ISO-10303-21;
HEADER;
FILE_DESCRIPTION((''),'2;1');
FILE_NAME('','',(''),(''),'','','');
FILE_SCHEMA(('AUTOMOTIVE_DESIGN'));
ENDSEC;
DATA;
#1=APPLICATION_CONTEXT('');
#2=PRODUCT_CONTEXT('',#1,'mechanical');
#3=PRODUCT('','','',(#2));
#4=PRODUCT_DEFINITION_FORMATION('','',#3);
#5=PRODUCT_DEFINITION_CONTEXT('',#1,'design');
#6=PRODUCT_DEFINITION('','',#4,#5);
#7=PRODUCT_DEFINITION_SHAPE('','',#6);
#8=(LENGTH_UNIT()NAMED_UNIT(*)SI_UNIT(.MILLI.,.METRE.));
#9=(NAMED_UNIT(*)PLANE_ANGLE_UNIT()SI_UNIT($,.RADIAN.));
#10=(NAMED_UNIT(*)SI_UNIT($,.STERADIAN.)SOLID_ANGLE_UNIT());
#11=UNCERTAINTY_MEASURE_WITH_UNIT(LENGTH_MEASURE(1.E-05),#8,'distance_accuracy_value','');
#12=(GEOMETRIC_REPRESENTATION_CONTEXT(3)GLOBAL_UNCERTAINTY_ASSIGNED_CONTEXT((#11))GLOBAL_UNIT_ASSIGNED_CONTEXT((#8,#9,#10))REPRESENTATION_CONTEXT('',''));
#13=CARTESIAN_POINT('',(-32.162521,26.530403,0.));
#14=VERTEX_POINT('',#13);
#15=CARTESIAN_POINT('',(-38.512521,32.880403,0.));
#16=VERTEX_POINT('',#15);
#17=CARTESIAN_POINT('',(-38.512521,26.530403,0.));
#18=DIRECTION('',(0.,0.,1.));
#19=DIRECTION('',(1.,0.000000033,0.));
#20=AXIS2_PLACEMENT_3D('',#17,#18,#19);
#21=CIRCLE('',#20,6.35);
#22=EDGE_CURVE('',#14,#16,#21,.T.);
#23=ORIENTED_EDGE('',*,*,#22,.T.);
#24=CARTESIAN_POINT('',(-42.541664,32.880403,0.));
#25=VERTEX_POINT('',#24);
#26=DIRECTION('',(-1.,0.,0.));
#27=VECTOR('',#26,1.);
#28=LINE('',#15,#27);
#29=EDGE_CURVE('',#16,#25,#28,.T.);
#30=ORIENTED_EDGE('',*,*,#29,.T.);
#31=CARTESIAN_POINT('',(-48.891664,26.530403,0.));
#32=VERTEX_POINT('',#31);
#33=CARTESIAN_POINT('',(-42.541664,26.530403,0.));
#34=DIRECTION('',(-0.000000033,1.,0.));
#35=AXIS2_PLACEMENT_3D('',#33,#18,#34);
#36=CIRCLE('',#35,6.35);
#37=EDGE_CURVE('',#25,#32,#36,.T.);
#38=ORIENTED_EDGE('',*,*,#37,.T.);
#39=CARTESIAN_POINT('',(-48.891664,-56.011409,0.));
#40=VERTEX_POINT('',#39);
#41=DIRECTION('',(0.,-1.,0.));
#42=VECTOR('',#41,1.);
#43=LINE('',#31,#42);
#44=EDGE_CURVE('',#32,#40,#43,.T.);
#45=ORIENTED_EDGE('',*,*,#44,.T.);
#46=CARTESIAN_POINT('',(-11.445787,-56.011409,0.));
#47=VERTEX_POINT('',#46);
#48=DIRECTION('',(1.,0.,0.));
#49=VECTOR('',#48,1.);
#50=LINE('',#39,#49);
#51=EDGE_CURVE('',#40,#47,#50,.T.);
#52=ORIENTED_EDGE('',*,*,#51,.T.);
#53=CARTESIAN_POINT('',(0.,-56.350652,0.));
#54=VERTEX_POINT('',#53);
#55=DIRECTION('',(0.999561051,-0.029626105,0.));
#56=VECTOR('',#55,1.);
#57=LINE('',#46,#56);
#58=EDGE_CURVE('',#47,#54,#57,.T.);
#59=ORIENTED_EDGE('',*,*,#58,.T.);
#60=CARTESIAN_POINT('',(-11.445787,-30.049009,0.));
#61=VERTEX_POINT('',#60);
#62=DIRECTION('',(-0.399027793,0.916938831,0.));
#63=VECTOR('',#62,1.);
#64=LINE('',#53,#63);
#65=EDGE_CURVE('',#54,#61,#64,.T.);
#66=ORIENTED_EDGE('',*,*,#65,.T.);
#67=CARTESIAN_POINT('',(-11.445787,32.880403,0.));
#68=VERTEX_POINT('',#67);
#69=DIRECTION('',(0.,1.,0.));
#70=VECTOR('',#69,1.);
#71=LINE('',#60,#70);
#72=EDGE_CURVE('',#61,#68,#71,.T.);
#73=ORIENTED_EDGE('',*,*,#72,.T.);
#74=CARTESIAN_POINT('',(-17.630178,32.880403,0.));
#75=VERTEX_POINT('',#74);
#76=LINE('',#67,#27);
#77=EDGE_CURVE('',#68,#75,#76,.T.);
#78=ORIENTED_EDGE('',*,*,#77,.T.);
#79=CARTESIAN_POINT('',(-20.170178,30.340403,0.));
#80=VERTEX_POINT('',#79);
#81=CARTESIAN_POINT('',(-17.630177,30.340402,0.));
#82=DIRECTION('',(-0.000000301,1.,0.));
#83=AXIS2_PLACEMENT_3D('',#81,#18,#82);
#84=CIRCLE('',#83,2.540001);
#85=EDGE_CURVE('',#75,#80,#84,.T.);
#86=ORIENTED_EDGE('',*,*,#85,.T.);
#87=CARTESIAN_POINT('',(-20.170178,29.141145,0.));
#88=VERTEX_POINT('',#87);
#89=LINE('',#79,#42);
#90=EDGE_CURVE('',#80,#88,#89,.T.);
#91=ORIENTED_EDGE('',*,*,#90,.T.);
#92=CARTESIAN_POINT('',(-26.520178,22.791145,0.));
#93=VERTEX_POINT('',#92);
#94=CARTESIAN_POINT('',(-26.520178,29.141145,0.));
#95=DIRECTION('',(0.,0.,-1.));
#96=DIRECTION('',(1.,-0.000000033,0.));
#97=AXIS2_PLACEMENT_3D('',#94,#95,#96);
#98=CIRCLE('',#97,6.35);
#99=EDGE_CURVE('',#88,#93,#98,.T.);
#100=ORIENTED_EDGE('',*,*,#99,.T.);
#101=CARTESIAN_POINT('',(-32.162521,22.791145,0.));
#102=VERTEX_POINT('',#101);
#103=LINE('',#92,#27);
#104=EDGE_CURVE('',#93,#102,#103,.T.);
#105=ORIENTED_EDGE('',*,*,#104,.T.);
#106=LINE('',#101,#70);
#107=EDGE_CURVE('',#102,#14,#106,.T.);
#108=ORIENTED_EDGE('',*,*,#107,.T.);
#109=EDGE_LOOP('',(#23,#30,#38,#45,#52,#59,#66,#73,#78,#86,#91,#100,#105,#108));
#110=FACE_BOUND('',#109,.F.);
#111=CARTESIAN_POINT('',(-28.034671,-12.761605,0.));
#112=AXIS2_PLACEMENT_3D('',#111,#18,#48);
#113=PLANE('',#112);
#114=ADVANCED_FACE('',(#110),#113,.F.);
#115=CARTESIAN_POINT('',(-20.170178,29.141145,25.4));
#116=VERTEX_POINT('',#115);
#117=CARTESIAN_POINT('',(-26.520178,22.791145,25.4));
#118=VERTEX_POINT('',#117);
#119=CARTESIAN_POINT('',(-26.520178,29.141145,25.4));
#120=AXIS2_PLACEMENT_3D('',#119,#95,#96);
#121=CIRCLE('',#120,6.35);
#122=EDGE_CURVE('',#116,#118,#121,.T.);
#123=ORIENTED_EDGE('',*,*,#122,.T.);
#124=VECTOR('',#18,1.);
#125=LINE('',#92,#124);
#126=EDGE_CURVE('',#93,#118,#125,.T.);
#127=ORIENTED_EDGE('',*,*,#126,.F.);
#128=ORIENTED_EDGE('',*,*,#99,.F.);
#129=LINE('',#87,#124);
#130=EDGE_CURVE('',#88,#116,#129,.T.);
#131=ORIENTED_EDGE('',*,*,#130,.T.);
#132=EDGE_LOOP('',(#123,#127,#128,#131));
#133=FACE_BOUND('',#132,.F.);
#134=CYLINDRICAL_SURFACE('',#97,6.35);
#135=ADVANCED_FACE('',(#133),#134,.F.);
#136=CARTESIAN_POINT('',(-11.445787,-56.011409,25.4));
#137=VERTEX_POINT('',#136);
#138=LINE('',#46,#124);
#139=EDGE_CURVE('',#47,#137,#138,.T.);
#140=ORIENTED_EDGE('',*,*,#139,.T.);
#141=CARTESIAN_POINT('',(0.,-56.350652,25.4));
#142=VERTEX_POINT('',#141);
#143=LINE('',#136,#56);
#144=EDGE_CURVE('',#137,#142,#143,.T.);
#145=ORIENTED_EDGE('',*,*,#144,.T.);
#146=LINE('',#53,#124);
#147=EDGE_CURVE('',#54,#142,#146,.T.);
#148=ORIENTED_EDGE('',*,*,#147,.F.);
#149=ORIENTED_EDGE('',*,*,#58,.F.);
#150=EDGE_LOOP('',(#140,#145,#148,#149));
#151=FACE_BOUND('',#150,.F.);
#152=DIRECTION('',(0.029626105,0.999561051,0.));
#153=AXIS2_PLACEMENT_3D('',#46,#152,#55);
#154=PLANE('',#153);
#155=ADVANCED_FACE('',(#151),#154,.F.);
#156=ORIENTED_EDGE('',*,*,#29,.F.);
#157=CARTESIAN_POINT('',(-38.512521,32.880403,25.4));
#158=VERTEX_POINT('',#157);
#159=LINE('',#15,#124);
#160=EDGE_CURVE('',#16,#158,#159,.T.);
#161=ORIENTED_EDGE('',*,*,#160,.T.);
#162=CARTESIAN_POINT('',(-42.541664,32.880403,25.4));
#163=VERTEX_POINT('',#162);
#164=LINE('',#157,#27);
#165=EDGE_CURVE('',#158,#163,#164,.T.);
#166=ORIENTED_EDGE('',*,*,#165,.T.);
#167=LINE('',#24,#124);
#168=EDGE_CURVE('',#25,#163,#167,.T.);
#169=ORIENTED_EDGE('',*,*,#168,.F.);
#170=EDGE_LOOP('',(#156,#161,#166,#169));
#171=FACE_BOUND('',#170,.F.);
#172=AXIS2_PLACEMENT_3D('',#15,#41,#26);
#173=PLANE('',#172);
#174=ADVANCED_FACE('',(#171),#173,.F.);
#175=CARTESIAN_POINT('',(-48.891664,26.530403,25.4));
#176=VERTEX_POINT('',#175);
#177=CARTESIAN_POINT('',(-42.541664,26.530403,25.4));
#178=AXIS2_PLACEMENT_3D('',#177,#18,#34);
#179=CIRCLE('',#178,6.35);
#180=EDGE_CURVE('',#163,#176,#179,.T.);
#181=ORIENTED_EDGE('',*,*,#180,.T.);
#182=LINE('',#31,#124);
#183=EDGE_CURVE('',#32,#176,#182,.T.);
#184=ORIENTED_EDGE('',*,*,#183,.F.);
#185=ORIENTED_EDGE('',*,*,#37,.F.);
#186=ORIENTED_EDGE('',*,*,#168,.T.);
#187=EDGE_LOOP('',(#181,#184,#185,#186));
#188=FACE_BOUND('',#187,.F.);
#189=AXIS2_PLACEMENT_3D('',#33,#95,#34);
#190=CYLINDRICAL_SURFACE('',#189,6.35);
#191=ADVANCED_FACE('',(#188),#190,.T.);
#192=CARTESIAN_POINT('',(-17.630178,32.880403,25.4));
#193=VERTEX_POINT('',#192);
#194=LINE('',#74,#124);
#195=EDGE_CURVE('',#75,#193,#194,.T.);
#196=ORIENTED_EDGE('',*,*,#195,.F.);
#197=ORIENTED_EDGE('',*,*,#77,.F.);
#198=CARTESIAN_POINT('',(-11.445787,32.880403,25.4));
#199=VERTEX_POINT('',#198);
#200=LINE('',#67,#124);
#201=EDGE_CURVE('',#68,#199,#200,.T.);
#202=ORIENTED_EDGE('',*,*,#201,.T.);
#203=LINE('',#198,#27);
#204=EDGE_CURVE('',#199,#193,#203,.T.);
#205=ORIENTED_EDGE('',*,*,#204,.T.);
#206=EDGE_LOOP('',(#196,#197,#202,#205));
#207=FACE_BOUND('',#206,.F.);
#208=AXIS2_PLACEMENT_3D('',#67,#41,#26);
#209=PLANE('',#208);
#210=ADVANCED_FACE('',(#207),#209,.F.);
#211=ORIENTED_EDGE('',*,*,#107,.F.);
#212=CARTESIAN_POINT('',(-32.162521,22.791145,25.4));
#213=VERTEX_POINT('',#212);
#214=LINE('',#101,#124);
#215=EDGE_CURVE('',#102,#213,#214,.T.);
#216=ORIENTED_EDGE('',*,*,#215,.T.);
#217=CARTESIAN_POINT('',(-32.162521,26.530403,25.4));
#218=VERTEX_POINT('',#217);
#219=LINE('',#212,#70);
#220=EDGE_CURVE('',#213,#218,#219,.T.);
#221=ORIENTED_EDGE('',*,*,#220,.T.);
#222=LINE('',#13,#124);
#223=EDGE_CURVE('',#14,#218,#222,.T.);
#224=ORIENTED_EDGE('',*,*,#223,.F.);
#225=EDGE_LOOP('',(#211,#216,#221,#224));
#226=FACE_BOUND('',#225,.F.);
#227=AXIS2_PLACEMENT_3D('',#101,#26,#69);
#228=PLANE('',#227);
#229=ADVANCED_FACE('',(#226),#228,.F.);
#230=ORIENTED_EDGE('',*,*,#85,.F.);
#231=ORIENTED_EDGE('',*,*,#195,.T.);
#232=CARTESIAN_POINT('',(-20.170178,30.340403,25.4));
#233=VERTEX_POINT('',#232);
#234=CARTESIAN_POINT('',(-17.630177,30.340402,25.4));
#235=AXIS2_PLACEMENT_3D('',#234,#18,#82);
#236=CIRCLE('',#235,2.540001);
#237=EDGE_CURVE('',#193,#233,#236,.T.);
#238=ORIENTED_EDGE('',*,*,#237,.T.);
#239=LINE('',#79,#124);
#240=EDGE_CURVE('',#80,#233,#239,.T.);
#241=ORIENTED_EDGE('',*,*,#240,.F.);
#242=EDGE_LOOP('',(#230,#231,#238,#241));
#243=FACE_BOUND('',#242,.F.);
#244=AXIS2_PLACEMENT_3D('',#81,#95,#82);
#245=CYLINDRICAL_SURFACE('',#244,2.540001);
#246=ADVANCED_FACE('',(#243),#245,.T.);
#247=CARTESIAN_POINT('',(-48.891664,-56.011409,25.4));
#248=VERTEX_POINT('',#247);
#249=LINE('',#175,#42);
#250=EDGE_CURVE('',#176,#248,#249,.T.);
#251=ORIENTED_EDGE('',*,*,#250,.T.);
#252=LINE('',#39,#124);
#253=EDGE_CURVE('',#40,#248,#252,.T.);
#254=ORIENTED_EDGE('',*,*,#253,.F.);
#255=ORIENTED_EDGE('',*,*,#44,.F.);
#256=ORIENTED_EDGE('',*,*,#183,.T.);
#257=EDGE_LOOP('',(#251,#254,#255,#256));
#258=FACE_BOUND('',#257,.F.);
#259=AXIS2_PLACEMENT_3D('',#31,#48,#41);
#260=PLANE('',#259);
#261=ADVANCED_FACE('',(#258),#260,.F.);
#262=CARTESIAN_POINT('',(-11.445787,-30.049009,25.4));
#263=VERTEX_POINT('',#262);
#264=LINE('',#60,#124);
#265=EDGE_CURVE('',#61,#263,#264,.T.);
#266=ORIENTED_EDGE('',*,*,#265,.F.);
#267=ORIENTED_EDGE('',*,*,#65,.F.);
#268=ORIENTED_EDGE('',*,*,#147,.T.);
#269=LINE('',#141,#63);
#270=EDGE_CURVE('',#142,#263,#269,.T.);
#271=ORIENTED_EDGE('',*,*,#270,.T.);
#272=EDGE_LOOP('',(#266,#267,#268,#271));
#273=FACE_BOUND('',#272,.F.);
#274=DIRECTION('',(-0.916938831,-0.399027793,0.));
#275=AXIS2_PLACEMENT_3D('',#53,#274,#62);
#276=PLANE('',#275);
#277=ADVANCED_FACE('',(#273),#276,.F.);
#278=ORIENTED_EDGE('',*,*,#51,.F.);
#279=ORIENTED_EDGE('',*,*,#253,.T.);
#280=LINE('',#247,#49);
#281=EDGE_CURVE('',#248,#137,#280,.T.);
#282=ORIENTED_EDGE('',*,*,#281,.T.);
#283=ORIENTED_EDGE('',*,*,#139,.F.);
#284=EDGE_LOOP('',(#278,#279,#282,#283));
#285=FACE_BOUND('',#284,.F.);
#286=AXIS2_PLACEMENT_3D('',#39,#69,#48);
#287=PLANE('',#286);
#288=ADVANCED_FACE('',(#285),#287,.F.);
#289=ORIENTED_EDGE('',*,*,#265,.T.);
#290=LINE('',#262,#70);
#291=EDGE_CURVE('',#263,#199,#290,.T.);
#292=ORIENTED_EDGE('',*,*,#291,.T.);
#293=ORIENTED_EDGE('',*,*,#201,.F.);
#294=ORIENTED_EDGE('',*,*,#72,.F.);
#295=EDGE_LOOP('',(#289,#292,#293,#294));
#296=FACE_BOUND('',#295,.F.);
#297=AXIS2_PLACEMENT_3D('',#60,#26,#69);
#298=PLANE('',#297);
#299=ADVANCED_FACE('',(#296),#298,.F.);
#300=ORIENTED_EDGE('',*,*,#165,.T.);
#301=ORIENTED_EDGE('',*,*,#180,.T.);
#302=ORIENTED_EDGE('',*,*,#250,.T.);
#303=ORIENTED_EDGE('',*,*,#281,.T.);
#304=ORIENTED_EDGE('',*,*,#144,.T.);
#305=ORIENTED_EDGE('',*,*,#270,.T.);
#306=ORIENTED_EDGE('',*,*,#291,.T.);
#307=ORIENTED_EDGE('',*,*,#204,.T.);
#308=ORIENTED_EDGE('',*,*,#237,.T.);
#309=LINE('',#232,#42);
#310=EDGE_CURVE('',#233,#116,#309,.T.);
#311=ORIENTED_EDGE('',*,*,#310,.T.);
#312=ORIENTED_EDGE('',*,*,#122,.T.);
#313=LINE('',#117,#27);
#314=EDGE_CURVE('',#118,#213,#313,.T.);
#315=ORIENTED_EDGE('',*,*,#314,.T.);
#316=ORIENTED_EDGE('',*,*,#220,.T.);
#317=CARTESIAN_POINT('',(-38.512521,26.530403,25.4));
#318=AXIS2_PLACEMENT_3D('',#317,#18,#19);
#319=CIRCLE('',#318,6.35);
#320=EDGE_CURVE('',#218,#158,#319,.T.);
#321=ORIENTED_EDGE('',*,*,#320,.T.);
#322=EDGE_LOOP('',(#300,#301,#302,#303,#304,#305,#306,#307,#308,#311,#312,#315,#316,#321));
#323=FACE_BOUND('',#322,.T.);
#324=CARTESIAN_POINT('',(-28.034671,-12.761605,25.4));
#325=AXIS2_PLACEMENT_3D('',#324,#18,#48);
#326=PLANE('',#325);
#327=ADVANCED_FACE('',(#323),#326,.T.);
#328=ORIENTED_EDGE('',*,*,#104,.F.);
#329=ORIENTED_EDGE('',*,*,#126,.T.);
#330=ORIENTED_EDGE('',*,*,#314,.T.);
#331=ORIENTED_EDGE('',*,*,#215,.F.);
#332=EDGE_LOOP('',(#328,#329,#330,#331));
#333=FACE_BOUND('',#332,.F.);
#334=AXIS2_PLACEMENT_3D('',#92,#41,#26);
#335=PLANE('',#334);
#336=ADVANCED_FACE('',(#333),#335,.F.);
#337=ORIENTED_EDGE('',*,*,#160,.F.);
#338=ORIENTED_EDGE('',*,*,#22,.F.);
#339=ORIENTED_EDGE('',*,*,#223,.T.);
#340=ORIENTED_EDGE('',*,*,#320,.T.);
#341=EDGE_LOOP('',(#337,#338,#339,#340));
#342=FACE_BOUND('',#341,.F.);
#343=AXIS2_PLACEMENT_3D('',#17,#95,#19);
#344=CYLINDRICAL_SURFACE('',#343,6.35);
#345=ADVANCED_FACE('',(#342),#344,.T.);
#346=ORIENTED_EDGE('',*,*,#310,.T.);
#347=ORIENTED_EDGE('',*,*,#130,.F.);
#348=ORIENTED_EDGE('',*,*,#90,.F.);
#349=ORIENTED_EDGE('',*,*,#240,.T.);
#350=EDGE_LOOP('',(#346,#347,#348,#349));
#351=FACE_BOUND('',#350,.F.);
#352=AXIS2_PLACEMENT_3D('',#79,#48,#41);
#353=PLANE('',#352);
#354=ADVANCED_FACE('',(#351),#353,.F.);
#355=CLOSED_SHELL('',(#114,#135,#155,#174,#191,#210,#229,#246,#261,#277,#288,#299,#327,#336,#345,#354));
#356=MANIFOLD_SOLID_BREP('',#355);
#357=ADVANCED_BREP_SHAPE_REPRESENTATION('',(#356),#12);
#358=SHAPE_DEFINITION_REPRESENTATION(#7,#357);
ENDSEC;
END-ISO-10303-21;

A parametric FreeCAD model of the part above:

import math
import FreeCAD as App
import Part
import Sketcher
Q = App.Units.Quantity

doc = App.newDocument("Part")
params = doc.addObject("Spreadsheet::Sheet", "Params")
for row, (alias, value) in enumerate([
    ("sketch1_radius", "0.1 in"),
    ("sketch1_radius2", "0.25 in"),
    ("pad1_length", "1 in"),
], start=1):
    params.set(f"A{row}", alias)
    params.set(f"B{row}", "=" + value)
    params.setAlias(f"B{row}", alias)

body = doc.addObject("PartDesign::Body", "Body")

# Sketch on XY plane
sketch1 = body.newObject("Sketcher::SketchObject", "Sketch")
sketch1.AttachmentSupport = (doc.getObject("XY_Plane"), [""])
sketch1.MapMode = "FlatFace"
sketch1.addGeometry(Part.LineSegment(App.Vector(-38.5, 32.9, 0), App.Vector(-42.5, 32.9, 0)), False)
sketch1.addGeometry(Part.ArcOfCircle(Part.Circle(App.Vector(-42.5, 26.5, 0), App.Vector(0, 0, 1), 6.4), math.radians(90), math.radians(180)), False)
sketch1.addGeometry(Part.LineSegment(App.Vector(-48.9, 26.5, 0), App.Vector(-48.9, -56, 0)), False)
sketch1.addGeometry(Part.LineSegment(App.Vector(-48.9, -56, 0), App.Vector(-11.4, -56, 0)), False)
sketch1.addGeometry(Part.LineSegment(App.Vector(-11.4, -56, 0), App.Vector(0, -56.4, 0)), False)
sketch1.addGeometry(Part.LineSegment(App.Vector(0, -56.4, 0), App.Vector(-11.4, -30, 0)), False)
sketch1.addGeometry(Part.LineSegment(App.Vector(-11.4, -30, 0), App.Vector(-11.4, 32.9, 0)), False)
sketch1.addGeometry(Part.LineSegment(App.Vector(-11.4, 32.9, 0), App.Vector(-17.6, 32.9, 0)), False)
sketch1.addGeometry(Part.ArcOfCircle(Part.Circle(App.Vector(-17.6, 30.3, 0), App.Vector(0, 0, 1), 2.5), math.radians(90), math.radians(180)), False)
sketch1.addGeometry(Part.LineSegment(App.Vector(-20.2, 30.3, 0), App.Vector(-20.2, 29.1, 0)), False)
sketch1.addGeometry(Part.ArcOfCircle(Part.Circle(App.Vector(-26.5, 29.1, 0), App.Vector(0, 0, 1), 6.4), math.radians(-90), math.radians(0)), False)
sketch1.addGeometry(Part.LineSegment(App.Vector(-26.5, 22.8, 0), App.Vector(-32.2, 22.8, 0)), False)
sketch1.addGeometry(Part.LineSegment(App.Vector(-32.2, 22.8, 0), App.Vector(-32.2, 26.5, 0)), False)
sketch1.addGeometry(Part.ArcOfCircle(Part.Circle(App.Vector(-38.5, 26.5, 0), App.Vector(0, 0, 1), 6.4), math.radians(0), math.radians(90)), False)
sketch1.addConstraint(Sketcher.Constraint("Tangent", 0, 2, 1, 1))
sketch1.addConstraint(Sketcher.Constraint("Tangent", 1, 2, 2, 1))
sketch1.addConstraint(Sketcher.Constraint("Coincident", 2, 2, 3, 1))
sketch1.addConstraint(Sketcher.Constraint("Coincident", 3, 2, 4, 1))
sketch1.addConstraint(Sketcher.Constraint("Coincident", 4, 2, 5, 1))
sketch1.addConstraint(Sketcher.Constraint("Coincident", 5, 2, 6, 1))
sketch1.addConstraint(Sketcher.Constraint("Coincident", 6, 2, 7, 1))
sketch1.addConstraint(Sketcher.Constraint("Tangent", 7, 2, 8, 1))
sketch1.addConstraint(Sketcher.Constraint("Tangent", 8, 2, 9, 1))
sketch1.addConstraint(Sketcher.Constraint("Tangent", 9, 2, 10, 2))
sketch1.addConstraint(Sketcher.Constraint("Tangent", 10, 1, 11, 1))
sketch1.addConstraint(Sketcher.Constraint("Coincident", 11, 2, 12, 1))
sketch1.addConstraint(Sketcher.Constraint("Tangent", 12, 2, 13, 1))
sketch1.addConstraint(Sketcher.Constraint("Tangent", 13, 2, 0, 1))
sketch1.addConstraint(Sketcher.Constraint("Horizontal", 0))
sketch1.addConstraint(Sketcher.Constraint("Vertical", 2))
sketch1.addConstraint(Sketcher.Constraint("Horizontal", 3))
sketch1.addConstraint(Sketcher.Constraint("Vertical", 6))
sketch1.addConstraint(Sketcher.Constraint("Horizontal", 7))
sketch1.addConstraint(Sketcher.Constraint("Vertical", 9))
sketch1.addConstraint(Sketcher.Constraint("Horizontal", 11))
sketch1.addConstraint(Sketcher.Constraint("Vertical", 12))
sketch1.addConstraint(Sketcher.Constraint("Equal", 1, 10))
sketch1.addConstraint(Sketcher.Constraint("Equal", 10, 13))
sketch1.addConstraint(Sketcher.Constraint("PointOnObject", 4, 2, -2))
sketch1.addConstraint(Sketcher.Constraint("Horizontal", 0, 2, 6, 2))
sketch1.addConstraint(Sketcher.Constraint("Vertical", 3, 2, 5, 2))
sketch1.addConstraint(Sketcher.Constraint("Radius", 8, Q("0.1 in")))
sketch1.addConstraint(Sketcher.Constraint("Radius", 1, Q("0.25 in")))
sketch1.addConstraint(Sketcher.Constraint("DistanceX", 7, 2, 7, 1, 6.184391))
sketch1.addConstraint(Sketcher.Constraint("DistanceY", 2, 2, 2, 1, 82.541812))
sketch1.addConstraint(Sketcher.Constraint("DistanceY", 3, 2, 5, 2, 25.9624))
sketch1.addConstraint(Sketcher.Constraint("DistanceX", 0, 2, 0, 1, 4.029143))
sketch1.addConstraint(Sketcher.Constraint("DistanceX", 3, 1, 3, 2, 37.445877))
sketch1.addConstraint(Sketcher.Constraint("DistanceY", 9, 2, 9, 1, 1.199258))
sketch1.addConstraint(Sketcher.Constraint("DistanceX", 10, 3, -1, 1, 26.520178))
sketch1.addConstraint(Sketcher.Constraint("DistanceY", 2, 2, -1, 1, 56.011409))
sketch1.addConstraint(Sketcher.Constraint("DistanceY", 4, 2, -1, 1, 56.350652))
sketch1.setExpression("Constraints[27]", "Params.sketch1_radius")
sketch1.setExpression("Constraints[28]", "Params.sketch1_radius2")
pad1 = body.newObject("PartDesign::Pad", "Pad")
pad1.Profile = sketch1
pad1.setExpression("Length", "Params.pad1_length")

doc.recompute()
